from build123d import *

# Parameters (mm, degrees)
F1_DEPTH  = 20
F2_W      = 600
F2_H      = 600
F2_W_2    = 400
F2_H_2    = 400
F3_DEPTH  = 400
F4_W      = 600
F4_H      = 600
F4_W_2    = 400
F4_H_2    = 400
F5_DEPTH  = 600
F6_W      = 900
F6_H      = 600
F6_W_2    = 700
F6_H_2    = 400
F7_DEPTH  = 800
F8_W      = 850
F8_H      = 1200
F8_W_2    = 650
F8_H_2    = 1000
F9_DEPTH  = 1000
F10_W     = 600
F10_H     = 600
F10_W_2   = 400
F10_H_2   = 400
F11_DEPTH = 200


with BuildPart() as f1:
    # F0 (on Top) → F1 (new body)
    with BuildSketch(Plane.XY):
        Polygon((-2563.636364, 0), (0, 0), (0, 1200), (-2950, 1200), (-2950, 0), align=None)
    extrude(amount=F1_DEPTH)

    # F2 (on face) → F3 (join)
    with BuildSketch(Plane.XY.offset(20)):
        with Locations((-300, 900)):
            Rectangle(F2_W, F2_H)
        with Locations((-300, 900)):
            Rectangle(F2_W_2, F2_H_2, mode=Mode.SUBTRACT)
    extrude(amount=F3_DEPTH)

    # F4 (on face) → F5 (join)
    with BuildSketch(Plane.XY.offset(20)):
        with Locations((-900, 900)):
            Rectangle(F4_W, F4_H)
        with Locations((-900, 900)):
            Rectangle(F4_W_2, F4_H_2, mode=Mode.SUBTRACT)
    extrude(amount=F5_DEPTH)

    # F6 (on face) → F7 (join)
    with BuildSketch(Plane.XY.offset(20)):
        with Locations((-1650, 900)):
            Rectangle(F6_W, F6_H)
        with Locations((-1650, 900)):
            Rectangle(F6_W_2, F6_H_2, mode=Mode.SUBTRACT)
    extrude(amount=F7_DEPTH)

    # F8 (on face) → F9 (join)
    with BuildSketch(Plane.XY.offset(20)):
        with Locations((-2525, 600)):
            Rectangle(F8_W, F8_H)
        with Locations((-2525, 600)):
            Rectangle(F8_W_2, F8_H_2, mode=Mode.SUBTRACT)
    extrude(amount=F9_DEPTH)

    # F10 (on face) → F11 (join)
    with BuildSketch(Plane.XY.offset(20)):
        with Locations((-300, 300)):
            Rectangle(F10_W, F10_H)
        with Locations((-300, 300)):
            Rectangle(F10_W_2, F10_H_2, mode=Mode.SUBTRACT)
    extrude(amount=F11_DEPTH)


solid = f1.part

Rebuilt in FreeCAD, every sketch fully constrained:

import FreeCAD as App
import Part
import Sketcher

V = App.Vector
Q = App.Units.Quantity


def add_polygon(sketch, points):
    """Adds a closed chain of lines whose ends are joined by coincident constraints."""
    first, n = sketch.GeometryCount, len(points)
    for a, b in zip(points, points[1:] + points[:1]):
        sketch.addGeometry(Part.LineSegment(App.Vector(*a, 0), App.Vector(*b, 0)), False)
    for i in range(n):
        sketch.addConstraint(Sketcher.Constraint("Coincident", first + i, 2, first + (i + 1) % n, 1))

doc = App.newDocument("Part")
body = doc.addObject("PartDesign::Body", "Body")

sketch1 = body.newObject("Sketcher::SketchObject", "Sketch")
sketch1.AttachmentSupport = (doc.getObject("XY_Plane"), [""])
sketch1.MapMode = "FlatFace"
add_polygon(sketch1, [(0, 0), (0, 1200), (-2950, 1200), (-2950, 0)])
sketch1.addConstraint(Sketcher.Constraint("Vertical", 0))
sketch1.addConstraint(Sketcher.Constraint("Horizontal", 1))
sketch1.addConstraint(Sketcher.Constraint("Vertical", 2))
sketch1.addConstraint(Sketcher.Constraint("Horizontal", 3))
sketch1.addConstraint(Sketcher.Constraint("Coincident", 3, 2, -1, 1))
sketch1.addConstraint(Sketcher.Constraint("DistanceX", 1, 2, 1, 1, Q("2950 mm")))
sketch1.addConstraint(Sketcher.Constraint("DistanceY", 0, 1, 0, 2, Q("1200 mm")))
pad1 = body.newObject("PartDesign::Pad", "Pad")
pad1.Profile = sketch1
pad1.Length = 20

sketch2 = body.newObject("Sketcher::SketchObject", "Sketch001")
sketch2.AttachmentSupport = (doc.getObject("XY_Plane"), [""])
sketch2.MapMode = "FlatFace"
sketch2.AttachmentOffset = App.Placement(V(0, 0, 20), App.Rotation())
add_polygon(sketch2, [(-600, 1200), (-600, 600), (0, 600), (0, 1200)])
add_polygon(sketch2, [(-100, 700), (-500, 700), (-500, 1100), (-100, 1100)])
sketch2.addConstraint(Sketcher.Constraint("Vertical", 0))
sketch2.addConstraint(Sketcher.Constraint("Horizontal", 1))
sketch2.addConstraint(Sketcher.Constraint("Vertical", 2))
sketch2.addConstraint(Sketcher.Constraint("Horizontal", 3))
sketch2.addConstraint(Sketcher.Constraint("Horizontal", 4))
sketch2.addConstraint(Sketcher.Constraint("Vertical", 5))
sketch2.addConstraint(Sketcher.Constraint("Horizontal", 6))
sketch2.addConstraint(Sketcher.Constraint("Vertical", 7))
sketch2.addConstraint(Sketcher.Constraint("PointOnObject", 1, 2, -2))
sketch2.addConstraint(Sketcher.Constraint("Equal", 3, 0))
sketch2.addConstraint(Sketcher.Constraint("Equal", 6, 5))
sketch2.addConstraint(Sketcher.Constraint("DistanceX", 1, 1, 1, 2, Q("600 mm")))
sketch2.addConstraint(Sketcher.Constraint("DistanceX", 4, 2, 4, 1, Q("400 mm")))
sketch2.addConstraint(Sketcher.Constraint("DistanceY", -1, 1, 0, 2, Q("600 mm")))
sketch2.addConstraint(Sketcher.Constraint("DistanceX", 4, 2, -1, 1, Q("500 mm")))
sketch2.addConstraint(Sketcher.Constraint("DistanceY", -1, 1, 4, 2, Q("700 mm")))
pad2 = body.newObject("PartDesign::Pad", "Pad001")
pad2.Profile = sketch2
pad2.Length = 400

sketch3 = body.newObject("Sketcher::SketchObject", "Sketch002")
sketch3.AttachmentSupport = (doc.getObject("XY_Plane"), [""])
sketch3.MapMode = "FlatFace"
sketch3.AttachmentOffset = App.Placement(V(0, 0, 20), App.Rotation())
add_polygon(sketch3, [(-1200, 1200), (-1200, 600), (-600, 600), (-600, 1200)])
add_polygon(sketch3, [(-700, 700), (-1100, 700), (-1100, 1100), (-700, 1100)])
sketch3.addConstraint(Sketcher.Constraint("Vertical", 0))
sketch3.addConstraint(Sketcher.Constraint("Horizontal", 1))
sketch3.addConstraint(Sketcher.Constraint("Vertical", 2))
sketch3.addConstraint(Sketcher.Constraint("Horizontal", 3))
sketch3.addConstraint(Sketcher.Constraint("Horizontal", 4))
sketch3.addConstraint(Sketcher.Constraint("Vertical", 5))
sketch3.addConstraint(Sketcher.Constraint("Horizontal", 6))
sketch3.addConstraint(Sketcher.Constraint("Vertical", 7))
sketch3.addConstraint(Sketcher.Constraint("Equal", 3, 0))
sketch3.addConstraint(Sketcher.Constraint("Equal", 6, 5))
sketch3.addConstraint(Sketcher.Constraint("DistanceX", 1, 1, 1, 2, Q("600 mm")))
sketch3.addConstraint(Sketcher.Constraint("DistanceX", 4, 2, 4, 1, Q("400 mm")))
sketch3.addConstraint(Sketcher.Constraint("DistanceX", 0, 2, -1, 1, Q("1200 mm")))
sketch3.addConstraint(Sketcher.Constraint("DistanceY", -1, 1, 0, 2, Q("600 mm")))
sketch3.addConstraint(Sketcher.Constraint("DistanceX", 4, 2, -1, 1, Q("1100 mm")))
sketch3.addConstraint(Sketcher.Constraint("DistanceY", -1, 1, 4, 2, Q("700 mm")))
pad3 = body.newObject("PartDesign::Pad", "Pad002")
pad3.Profile = sketch3
pad3.Length = 600

sketch4 = body.newObject("Sketcher::SketchObject", "Sketch003")
sketch4.AttachmentSupport = (doc.getObject("XY_Plane"), [""])
sketch4.MapMode = "FlatFace"
sketch4.AttachmentOffset = App.Placement(V(0, 0, 20), App.Rotation())
add_polygon(sketch4, [(-2100, 1200), (-2100, 600), (-1200, 600), (-1200, 1200)])
add_polygon(sketch4, [(-1300, 700), (-2000, 700), (-2000, 1100), (-1300, 1100)])
sketch4.addConstraint(Sketcher.Constraint("Vertical", 0))
sketch4.addConstraint(Sketcher.Constraint("Horizontal", 1))
sketch4.addConstraint(Sketcher.Constraint("Vertical", 2))
sketch4.addConstraint(Sketcher.Constraint("Horizontal", 3))
sketch4.addConstraint(Sketcher.Constraint("Horizontal", 4))
sketch4.addConstraint(Sketcher.Constraint("Vertical", 5))
sketch4.addConstraint(Sketcher.Constraint("Horizontal", 6))
sketch4.addConstraint(Sketcher.Constraint("Vertical", 7))
sketch4.addConstraint(Sketcher.Constraint("DistanceX", 1, 1, 1, 2, Q("900 mm")))
sketch4.addConstraint(Sketcher.Constraint("DistanceX", 4, 2, 4, 1, Q("700 mm")))
sketch4.addConstraint(Sketcher.Constraint("DistanceY", 0, 2, 0, 1, Q("600 mm")))
sketch4.addConstraint(Sketcher.Constraint("DistanceY", 5, 1, 5, 2, Q("400 mm")))
sketch4.addConstraint(Sketcher.Constraint("DistanceX", 0, 2, -1, 1, Q("2100 mm")))
sketch4.addConstraint(Sketcher.Constraint("DistanceY", -1, 1, 0, 2, Q("600 mm")))
sketch4.addConstraint(Sketcher.Constraint("DistanceX", 4, 2, -1, 1, Q("2000 mm")))
sketch4.addConstraint(Sketcher.Constraint("DistanceY", -1, 1, 4, 2, Q("700 mm")))
pad4 = body.newObject("PartDesign::Pad", "Pad003")
pad4.Profile = sketch4
pad4.Length = 800

sketch5 = body.newObject("Sketcher::SketchObject", "Sketch004")
sketch5.AttachmentSupport = (doc.getObject("XY_Plane"), [""])
sketch5.MapMode = "FlatFace"
sketch5.AttachmentOffset = App.Placement(V(0, 0, 20), App.Rotation())
add_polygon(sketch5, [(-2950, 1200), (-2950, 0), (-2100, 0), (-2100, 1200)])
add_polygon(sketch5, [(-2200, 100), (-2850, 100), (-2850, 1100), (-2200, 1100)])
sketch5.addConstraint(Sketcher.Constraint("Vertical", 0))
sketch5.addConstraint(Sketcher.Constraint("Horizontal", 1))
sketch5.addConstraint(Sketcher.Constraint("Vertical", 2))
sketch5.addConstraint(Sketcher.Constraint("Horizontal", 3))
sketch5.addConstraint(Sketcher.Constraint("Horizontal", 4))
sketch5.addConstraint(Sketcher.Constraint("Vertical", 5))
sketch5.addConstraint(Sketcher.Constraint("Horizontal", 6))
sketch5.addConstraint(Sketcher.Constraint("Vertical", 7))
sketch5.addConstraint(Sketcher.Constraint("PointOnObject", 0, 2, -1))
sketch5.addConstraint(Sketcher.Constraint("DistanceX", 1, 1, 1, 2, Q("850 mm")))
sketch5.addConstraint(Sketcher.Constraint("DistanceX", 4, 2, 4, 1, Q("650 mm")))
sketch5.addConstraint(Sketcher.Constraint("DistanceY", 0, 2, 0, 1, Q("1200 mm")))
sketch5.addConstraint(Sketcher.Constraint("DistanceY", 5, 1, 5, 2, Q("1000 mm")))
sketch5.addConstraint(Sketcher.Constraint("DistanceX", 0, 2, -1, 1, Q("2950 mm")))
sketch5.addConstraint(Sketcher.Constraint("DistanceX", 4, 2, -1, 1, Q("2850 mm")))
sketch5.addConstraint(Sketcher.Constraint("DistanceY", -1, 1, 4, 2, Q("100 mm")))
pad5 = body.newObject("PartDesign::Pad", "Pad004")
pad5.Profile = sketch5
pad5.Length = 1000

sketch6 = body.newObject("Sketcher::SketchObject", "Sketch005")
sketch6.AttachmentSupport = (doc.getObject("XY_Plane"), [""])
sketch6.MapMode = "FlatFace"
sketch6.AttachmentOffset = App.Placement(V(0, 0, 20), App.Rotation())
add_polygon(sketch6, [(-600, 600), (-600, 0), (0, 0), (0, 600)])
add_polygon(sketch6, [(-100, 100), (-500, 100), (-500, 500), (-100, 500)])
sketch6.addConstraint(Sketcher.Constraint("Vertical", 0))
sketch6.addConstraint(Sketcher.Constraint("Horizontal", 1))
sketch6.addConstraint(Sketcher.Constraint("Vertical", 2))
sketch6.addConstraint(Sketcher.Constraint("Horizontal", 3))
sketch6.addConstraint(Sketcher.Constraint("Horizontal", 4))
sketch6.addConstraint(Sketcher.Constraint("Vertical", 5))
sketch6.addConstraint(Sketcher.Constraint("Horizontal", 6))
sketch6.addConstraint(Sketcher.Constraint("Vertical", 7))
sketch6.addConstraint(Sketcher.Constraint("Coincident", 1, 2, -1, 1))
sketch6.addConstraint(Sketcher.Constraint("Equal", 3, 0))
sketch6.addConstraint(Sketcher.Constraint("Equal", 6, 5))
sketch6.addConstraint(Sketcher.Constraint("DistanceX", 1, 1, 1, 2, Q("600 mm")))
sketch6.addConstraint(Sketcher.Constraint("DistanceX", 4, 2, 4, 1, Q("400 mm")))
sketch6.addConstraint(Sketcher.Constraint("DistanceX", 4, 2, -1, 1, Q("500 mm")))
sketch6.addConstraint(Sketcher.Constraint("DistanceY", -1, 1, 4, 2, Q("100 mm")))
pad6 = body.newObject("PartDesign::Pad", "Pad005")
pad6.Profile = sketch6
pad6.Length = 200

doc.recompute()
